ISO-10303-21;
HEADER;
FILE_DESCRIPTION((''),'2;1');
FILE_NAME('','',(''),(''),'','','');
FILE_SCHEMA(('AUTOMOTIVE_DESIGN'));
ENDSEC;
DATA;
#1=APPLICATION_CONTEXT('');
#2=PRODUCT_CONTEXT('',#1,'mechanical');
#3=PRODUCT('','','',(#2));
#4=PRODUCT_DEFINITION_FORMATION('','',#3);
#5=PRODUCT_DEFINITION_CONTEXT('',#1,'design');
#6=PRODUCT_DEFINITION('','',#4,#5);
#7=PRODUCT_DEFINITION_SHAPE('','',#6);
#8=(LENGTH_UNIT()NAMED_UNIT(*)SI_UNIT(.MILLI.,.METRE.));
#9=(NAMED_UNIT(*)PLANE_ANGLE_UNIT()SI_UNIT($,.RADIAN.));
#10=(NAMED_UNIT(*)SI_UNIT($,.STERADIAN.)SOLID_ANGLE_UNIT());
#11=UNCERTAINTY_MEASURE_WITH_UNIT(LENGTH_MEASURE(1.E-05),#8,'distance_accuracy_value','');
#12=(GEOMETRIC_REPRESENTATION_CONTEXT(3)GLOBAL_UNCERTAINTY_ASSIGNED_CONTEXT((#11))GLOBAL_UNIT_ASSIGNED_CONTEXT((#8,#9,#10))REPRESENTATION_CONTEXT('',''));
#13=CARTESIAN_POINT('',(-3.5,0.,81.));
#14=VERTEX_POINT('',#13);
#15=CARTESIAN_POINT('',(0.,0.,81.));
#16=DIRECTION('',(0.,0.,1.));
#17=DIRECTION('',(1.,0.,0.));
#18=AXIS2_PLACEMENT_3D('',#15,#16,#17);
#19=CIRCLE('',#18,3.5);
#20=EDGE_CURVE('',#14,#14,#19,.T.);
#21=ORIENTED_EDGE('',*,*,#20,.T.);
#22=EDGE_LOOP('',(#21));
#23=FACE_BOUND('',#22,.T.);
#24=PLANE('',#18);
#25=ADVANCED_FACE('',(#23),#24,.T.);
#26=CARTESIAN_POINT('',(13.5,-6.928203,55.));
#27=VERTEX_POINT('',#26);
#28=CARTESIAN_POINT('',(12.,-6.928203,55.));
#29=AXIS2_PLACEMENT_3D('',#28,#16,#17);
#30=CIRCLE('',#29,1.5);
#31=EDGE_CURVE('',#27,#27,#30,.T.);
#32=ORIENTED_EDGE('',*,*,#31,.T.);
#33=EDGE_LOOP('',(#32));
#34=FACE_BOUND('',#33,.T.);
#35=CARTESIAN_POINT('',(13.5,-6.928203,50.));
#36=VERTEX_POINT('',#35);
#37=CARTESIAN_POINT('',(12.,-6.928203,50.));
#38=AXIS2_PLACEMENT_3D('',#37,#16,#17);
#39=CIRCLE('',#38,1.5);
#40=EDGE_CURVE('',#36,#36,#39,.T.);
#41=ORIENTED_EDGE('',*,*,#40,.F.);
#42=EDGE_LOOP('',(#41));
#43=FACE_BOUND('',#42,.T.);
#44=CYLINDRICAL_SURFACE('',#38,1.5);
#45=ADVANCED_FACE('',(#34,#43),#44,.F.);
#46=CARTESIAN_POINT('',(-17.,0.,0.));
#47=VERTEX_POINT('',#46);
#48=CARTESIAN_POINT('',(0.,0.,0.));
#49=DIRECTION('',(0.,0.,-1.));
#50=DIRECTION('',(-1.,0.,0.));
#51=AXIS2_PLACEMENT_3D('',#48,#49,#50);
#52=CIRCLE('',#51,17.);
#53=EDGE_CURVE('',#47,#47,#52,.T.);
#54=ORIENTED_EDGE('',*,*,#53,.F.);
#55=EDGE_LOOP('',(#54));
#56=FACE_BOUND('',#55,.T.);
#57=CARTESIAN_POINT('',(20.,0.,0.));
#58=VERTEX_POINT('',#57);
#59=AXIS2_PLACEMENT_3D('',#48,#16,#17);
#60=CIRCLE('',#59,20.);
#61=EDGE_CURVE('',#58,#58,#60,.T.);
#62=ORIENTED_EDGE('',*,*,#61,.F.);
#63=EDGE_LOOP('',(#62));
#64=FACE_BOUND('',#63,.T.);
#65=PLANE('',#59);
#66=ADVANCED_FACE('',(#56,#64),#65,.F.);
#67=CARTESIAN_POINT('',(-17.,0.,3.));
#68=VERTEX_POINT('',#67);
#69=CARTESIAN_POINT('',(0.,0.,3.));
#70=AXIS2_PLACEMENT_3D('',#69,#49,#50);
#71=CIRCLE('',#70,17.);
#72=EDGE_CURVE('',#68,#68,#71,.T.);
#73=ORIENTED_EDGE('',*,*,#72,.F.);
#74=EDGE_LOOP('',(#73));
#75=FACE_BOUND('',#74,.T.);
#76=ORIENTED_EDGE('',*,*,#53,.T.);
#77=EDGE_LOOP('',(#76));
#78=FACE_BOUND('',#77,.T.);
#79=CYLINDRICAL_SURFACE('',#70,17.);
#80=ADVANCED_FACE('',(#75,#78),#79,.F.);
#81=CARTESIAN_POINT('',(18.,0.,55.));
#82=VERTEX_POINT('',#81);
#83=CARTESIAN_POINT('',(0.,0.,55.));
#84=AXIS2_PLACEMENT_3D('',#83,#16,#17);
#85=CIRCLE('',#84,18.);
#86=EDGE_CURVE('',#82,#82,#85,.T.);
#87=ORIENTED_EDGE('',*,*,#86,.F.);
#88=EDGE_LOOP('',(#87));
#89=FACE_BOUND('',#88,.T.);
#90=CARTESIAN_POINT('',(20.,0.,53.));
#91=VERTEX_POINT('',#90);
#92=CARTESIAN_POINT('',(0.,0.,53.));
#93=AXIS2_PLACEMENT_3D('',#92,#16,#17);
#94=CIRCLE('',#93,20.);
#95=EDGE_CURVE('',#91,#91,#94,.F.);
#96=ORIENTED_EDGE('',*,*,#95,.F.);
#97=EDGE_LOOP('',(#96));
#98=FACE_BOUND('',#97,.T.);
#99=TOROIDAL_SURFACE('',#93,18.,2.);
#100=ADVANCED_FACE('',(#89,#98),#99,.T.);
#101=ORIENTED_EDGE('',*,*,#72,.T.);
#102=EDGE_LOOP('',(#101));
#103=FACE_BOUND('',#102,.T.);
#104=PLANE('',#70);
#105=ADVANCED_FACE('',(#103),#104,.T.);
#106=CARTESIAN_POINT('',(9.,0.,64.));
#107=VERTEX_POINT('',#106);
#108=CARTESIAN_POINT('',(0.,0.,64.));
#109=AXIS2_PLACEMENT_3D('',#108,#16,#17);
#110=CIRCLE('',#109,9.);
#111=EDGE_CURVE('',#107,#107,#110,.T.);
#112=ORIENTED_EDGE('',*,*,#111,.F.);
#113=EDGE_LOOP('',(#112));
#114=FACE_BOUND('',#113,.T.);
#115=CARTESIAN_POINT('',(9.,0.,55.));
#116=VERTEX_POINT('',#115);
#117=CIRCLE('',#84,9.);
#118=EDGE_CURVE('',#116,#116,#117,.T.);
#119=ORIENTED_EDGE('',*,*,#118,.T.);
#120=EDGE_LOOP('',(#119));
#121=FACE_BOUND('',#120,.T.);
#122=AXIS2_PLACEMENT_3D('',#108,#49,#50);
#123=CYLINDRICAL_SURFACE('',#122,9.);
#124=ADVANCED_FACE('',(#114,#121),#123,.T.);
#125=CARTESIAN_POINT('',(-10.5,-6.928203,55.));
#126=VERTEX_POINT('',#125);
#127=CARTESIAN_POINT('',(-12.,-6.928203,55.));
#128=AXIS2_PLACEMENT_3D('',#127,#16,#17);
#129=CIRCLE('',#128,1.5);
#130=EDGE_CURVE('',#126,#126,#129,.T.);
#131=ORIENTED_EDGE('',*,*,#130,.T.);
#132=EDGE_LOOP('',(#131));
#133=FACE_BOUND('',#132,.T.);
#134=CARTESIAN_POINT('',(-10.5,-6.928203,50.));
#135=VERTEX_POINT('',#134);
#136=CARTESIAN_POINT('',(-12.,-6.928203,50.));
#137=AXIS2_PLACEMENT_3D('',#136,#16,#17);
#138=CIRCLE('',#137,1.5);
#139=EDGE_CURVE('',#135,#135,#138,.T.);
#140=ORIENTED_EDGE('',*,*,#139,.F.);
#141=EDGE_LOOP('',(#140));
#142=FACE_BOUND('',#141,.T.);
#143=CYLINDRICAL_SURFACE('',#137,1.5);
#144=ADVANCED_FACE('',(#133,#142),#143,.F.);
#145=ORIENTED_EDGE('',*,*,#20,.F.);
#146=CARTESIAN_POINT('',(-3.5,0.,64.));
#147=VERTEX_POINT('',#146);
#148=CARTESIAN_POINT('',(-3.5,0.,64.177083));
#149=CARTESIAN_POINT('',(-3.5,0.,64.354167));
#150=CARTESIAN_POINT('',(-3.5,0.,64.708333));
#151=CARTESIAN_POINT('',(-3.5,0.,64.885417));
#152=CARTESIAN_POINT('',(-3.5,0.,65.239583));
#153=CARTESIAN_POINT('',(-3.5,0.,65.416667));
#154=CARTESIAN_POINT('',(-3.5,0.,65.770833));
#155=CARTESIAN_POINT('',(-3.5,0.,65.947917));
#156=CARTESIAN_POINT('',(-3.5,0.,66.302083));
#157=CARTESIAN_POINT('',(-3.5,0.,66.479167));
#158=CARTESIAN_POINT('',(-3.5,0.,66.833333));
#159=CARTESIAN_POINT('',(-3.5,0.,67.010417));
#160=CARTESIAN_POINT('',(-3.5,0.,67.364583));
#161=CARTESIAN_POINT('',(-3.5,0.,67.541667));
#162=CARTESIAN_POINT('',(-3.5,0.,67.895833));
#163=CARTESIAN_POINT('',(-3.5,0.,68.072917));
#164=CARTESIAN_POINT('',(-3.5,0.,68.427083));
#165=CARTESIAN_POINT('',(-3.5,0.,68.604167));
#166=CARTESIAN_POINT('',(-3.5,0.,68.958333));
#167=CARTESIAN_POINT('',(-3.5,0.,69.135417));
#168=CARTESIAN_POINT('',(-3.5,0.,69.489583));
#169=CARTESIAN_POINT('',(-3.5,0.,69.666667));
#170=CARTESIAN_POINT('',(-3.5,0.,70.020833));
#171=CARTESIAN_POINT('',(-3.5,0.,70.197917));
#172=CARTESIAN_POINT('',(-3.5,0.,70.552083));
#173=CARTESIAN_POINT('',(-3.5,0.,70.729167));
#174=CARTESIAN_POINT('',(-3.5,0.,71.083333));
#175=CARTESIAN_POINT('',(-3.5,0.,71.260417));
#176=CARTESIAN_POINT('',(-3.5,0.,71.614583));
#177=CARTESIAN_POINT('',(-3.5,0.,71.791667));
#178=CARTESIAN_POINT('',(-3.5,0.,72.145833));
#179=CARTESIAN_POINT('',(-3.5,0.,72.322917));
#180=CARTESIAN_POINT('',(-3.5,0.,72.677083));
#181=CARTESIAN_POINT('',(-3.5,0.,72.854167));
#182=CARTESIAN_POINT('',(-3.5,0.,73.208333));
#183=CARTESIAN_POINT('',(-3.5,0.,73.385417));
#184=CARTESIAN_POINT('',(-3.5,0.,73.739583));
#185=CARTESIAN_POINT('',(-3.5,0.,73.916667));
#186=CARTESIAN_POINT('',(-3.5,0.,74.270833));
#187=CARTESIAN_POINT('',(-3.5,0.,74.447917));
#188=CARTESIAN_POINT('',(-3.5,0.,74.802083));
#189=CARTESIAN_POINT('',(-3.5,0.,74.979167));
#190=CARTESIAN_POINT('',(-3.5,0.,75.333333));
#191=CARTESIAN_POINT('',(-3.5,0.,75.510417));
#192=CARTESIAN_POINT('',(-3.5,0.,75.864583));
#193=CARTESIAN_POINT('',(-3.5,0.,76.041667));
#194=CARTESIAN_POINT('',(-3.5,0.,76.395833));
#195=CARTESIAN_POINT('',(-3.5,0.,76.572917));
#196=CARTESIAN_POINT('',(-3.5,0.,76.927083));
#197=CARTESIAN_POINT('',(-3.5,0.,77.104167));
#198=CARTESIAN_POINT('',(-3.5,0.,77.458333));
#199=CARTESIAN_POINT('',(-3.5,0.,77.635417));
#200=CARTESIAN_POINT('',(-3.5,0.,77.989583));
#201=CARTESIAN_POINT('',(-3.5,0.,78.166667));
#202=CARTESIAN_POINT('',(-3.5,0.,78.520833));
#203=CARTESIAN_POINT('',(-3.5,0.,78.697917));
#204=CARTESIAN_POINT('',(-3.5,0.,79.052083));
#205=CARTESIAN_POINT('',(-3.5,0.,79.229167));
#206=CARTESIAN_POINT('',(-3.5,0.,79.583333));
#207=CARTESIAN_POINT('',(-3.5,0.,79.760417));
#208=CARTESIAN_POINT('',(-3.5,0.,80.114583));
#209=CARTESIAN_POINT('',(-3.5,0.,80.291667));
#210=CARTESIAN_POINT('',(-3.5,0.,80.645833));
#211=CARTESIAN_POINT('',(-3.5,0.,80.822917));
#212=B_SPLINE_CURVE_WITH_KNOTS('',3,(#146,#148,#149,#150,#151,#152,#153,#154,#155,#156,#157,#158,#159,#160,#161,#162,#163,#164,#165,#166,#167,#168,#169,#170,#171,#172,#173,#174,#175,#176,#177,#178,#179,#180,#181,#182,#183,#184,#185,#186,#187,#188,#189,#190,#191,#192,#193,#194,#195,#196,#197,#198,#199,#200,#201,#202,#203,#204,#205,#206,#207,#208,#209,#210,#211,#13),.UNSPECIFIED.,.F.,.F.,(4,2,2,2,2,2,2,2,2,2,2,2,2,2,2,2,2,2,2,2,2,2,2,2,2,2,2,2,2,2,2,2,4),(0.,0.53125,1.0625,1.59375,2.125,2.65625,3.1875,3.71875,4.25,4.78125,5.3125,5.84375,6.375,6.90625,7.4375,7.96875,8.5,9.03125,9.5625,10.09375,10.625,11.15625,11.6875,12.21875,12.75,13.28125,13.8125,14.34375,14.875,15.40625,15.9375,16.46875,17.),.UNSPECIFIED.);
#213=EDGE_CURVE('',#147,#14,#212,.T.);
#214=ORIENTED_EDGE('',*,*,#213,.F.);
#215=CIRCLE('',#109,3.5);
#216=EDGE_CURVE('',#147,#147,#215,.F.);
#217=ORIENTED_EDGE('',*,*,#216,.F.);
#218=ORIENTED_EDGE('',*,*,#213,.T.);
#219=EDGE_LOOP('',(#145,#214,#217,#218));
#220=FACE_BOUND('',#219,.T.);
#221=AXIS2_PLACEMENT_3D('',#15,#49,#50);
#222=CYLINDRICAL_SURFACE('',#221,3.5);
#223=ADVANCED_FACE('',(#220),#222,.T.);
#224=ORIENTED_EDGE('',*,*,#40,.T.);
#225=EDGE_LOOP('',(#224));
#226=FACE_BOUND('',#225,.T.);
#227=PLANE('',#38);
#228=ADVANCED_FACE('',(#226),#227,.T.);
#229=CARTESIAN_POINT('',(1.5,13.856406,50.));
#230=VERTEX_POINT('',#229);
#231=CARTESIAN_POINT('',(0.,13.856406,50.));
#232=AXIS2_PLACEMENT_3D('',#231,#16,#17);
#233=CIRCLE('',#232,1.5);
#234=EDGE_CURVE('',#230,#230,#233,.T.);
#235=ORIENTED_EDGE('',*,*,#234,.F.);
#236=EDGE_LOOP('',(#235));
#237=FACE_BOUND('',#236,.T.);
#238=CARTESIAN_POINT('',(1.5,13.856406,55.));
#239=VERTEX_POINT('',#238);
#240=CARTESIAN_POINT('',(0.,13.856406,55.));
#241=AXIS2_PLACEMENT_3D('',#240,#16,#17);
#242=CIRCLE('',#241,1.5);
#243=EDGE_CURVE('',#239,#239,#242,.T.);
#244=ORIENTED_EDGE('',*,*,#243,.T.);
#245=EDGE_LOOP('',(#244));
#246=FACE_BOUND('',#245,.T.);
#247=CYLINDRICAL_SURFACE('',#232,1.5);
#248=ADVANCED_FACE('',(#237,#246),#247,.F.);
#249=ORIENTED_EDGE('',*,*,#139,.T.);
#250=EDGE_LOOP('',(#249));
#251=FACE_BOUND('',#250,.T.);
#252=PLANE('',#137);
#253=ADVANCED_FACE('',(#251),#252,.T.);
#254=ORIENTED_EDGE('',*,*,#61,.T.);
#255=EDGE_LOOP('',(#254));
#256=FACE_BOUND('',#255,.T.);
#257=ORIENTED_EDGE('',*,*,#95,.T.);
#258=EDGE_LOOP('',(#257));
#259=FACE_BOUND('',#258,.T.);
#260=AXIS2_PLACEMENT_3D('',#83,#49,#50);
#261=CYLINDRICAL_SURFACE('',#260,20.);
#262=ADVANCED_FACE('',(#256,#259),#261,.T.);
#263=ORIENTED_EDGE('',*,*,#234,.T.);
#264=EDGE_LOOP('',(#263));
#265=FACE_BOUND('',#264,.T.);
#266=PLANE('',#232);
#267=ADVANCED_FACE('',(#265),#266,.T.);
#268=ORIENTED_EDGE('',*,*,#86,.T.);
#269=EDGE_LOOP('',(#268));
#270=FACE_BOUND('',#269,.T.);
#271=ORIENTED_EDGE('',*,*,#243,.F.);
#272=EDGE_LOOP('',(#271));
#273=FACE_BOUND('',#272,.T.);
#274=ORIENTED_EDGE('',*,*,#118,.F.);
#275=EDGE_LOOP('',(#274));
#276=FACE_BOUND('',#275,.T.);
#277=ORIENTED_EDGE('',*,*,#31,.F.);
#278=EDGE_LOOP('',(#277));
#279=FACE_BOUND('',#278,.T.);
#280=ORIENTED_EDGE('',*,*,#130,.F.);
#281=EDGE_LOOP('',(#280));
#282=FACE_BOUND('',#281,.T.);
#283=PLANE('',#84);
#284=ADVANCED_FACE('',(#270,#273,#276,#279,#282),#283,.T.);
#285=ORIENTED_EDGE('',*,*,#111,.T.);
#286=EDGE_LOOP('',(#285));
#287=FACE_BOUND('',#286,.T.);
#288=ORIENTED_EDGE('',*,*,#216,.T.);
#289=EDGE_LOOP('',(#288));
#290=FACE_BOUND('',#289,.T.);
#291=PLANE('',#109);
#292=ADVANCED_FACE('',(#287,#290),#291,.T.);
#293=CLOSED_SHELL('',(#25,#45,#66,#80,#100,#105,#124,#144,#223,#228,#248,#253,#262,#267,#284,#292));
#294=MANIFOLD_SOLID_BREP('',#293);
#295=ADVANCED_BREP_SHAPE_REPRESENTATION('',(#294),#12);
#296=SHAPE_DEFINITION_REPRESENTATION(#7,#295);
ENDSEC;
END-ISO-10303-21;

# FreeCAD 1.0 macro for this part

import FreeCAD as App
import Part
import Sketcher


def edges_at(feature, points):
    """Names of the edges that pass closest to the given points."""
    edges = feature.Shape.Edges
    near = lambda p: min(range(len(edges)), key=lambda i: edges[i].distToShape(Part.Vertex(*p))[0])
    return sorted({f"Edge{near(p) + 1}" for p in points})

doc = App.newDocument("Part")
body = doc.addObject("PartDesign::Body", "Body")

# Sketch on XY plane
sketch1 = doc.addObject("Sketcher::SketchObject", "Sketch")
body.addObject(sketch1)
sketch1.AttachmentSupport = (doc.XY_Plane, [""])
sketch1.MapMode = "FlatFace"
sketch1.addGeometry(Part.Circle(App.Vector(0, 0, 0), App.Vector(0, 0, 1), 20), False)
sketch1.addConstraint([
    Sketcher.Constraint("Coincident", 0, 3, -1, 1),
    Sketcher.Constraint("Diameter", 0, 40.0),
])
pad1 = doc.addObject("PartDesign::Pad", "Pad")
body.addObject(pad1)
pad1.Profile = sketch1
pad1.Length = 55

# Sketch on XY plane
sketch2 = doc.addObject("Sketcher::SketchObject", "Sketch001")
body.addObject(sketch2)
sketch2.AttachmentSupport = (doc.XY_Plane, [""])
sketch2.MapMode = "FlatFace"
sketch2.AttachmentOffset = App.Placement(App.Vector(0, 0, 55), App.Rotation())
sketch2.addGeometry(Part.Circle(App.Vector(0, 0, 0), App.Vector(0, 0, 1), 9), False)
sketch2.addConstraint([
    Sketcher.Constraint("Coincident", 0, 3, -1, 1),
    Sketcher.Constraint("Diameter", 0, 18.0),
])
pad2 = doc.addObject("PartDesign::Pad", "Pad001")
body.addObject(pad2)
pad2.Profile = sketch2
pad2.Length = 9

# Sketch on XY plane
sketch3 = doc.addObject("Sketcher::SketchObject", "Sketch002")
body.addObject(sketch3)
sketch3.AttachmentSupport = (doc.XY_Plane, [""])
sketch3.MapMode = "FlatFace"
sketch3.AttachmentOffset = App.Placement(App.Vector(0, 0, 55), App.Rotation())
sketch3.addGeometry(Part.Circle(App.Vector(0, 0, 0), App.Vector(0, 0, 1), 3.5), False)
sketch3.addConstraint([
    Sketcher.Constraint("Coincident", 0, 3, -1, 1),
    Sketcher.Constraint("Diameter", 0, 7.0),
])
pocket1 = doc.addObject("PartDesign::Pocket", "Pocket")
body.addObject(pocket1)
pocket1.Profile = sketch3
pocket1.Type = "TwoLengths"
pocket1.Length = 100
pocket1.Length2 = 2
pocket1.Reversed = True

# Sketch on XY plane
sketch4 = doc.addObject("Sketcher::SketchObject", "Sketch003")
body.addObject(sketch4)
sketch4.AttachmentSupport = (doc.XY_Plane, [""])
sketch4.MapMode = "FlatFace"
sketch4.AttachmentOffset = App.Placement(App.Vector(0, 0, 53), App.Rotation())
sketch4.addGeometry(Part.Circle(App.Vector(0, 0, 0), App.Vector(0, 0, 1), 3.5), False)
sketch4.addConstraint([
    Sketcher.Constraint("Coincident", 0, 3, -1, 1),
    Sketcher.Constraint("Diameter", 0, 7.0),
])
pad3 = doc.addObject("PartDesign::Pad", "Pad002")
body.addObject(pad3)
pad3.Profile = sketch4
pad3.Length = 28

# Sketch on XY plane
sketch5 = doc.addObject("Sketcher::SketchObject", "Sketch004")
body.addObject(sketch5)
sketch5.AttachmentSupport = (doc.XY_Plane, [""])
sketch5.MapMode = "FlatFace"
sketch5.addGeometry(Part.Circle(App.Vector(0, 0, 0), App.Vector(0, 0, 1), 17), False)
sketch5.addConstraint([
    Sketcher.Constraint("Coincident", 0, 3, -1, 1),
    Sketcher.Constraint("Diameter", 0, 34.0),
])
pocket2 = doc.addObject("PartDesign::Pocket", "Pocket001")
body.addObject(pocket2)
pocket2.Profile = sketch5
pocket2.Length = 3
pocket2.Reversed = True
doc.recompute()

fillet = doc.addObject("PartDesign::Fillet", "Fillet")
body.addObject(fillet)
fillet.Base = (pocket2, edges_at(pocket2, [(-20, 0, 55)]))
fillet.Radius = 2

# Sketch on XY plane
sketch6 = doc.addObject("Sketcher::SketchObject", "Sketch005")
body.addObject(sketch6)
sketch6.AttachmentSupport = (doc.XY_Plane, [""])
sketch6.MapMode = "FlatFace"
sketch6.AttachmentOffset = App.Placement(App.Vector(0, 0, 55), App.Rotation())
sketch6.addGeometry([
    Part.Circle(App.Vector(0, 13.9, 0), App.Vector(0, 0, 1), 1.5),
    Part.Circle(App.Vector(-12, -6.9, 0), App.Vector(0, 0, 1), 1.5),
    Part.Circle(App.Vector(12, -6.9, 0), App.Vector(0, 0, 1), 1.5),
], False)
sketch6.addConstraint([
    Sketcher.Constraint("Equal", 0, 1),
    Sketcher.Constraint("Equal", 1, 2),
    Sketcher.Constraint("Symmetric", 1, 3, 2, 3, -2),
    Sketcher.Constraint("PointOnObject", 0, 3, -2),
    Sketcher.Constraint("Diameter", 0, 3.0),
    Sketcher.Constraint("DistanceX", 1, 3, -1, 1, 12.0),
    Sketcher.Constraint("DistanceY", 1, 3, 0, 3, 20.78461),
    Sketcher.Constraint("DistanceY", -1, 1, 0, 3, 13.856406),
])
pocket3 = doc.addObject("PartDesign::Pocket", "Pocket002")
body.addObject(pocket3)
pocket3.Profile = sketch6
pocket3.Length = 5

doc.recompute()
